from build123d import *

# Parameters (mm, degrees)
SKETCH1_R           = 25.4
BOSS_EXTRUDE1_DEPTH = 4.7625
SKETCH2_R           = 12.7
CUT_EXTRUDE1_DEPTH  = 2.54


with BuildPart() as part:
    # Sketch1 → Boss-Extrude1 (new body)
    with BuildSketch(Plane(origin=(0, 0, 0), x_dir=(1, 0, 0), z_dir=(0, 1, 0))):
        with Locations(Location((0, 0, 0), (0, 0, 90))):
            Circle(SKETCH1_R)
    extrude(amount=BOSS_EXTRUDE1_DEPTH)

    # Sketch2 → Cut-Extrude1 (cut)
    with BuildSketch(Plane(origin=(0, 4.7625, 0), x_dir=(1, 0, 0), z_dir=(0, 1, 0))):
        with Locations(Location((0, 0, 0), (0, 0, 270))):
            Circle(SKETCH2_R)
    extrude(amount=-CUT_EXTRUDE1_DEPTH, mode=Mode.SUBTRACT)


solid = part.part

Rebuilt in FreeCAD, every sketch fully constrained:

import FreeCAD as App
import Part
import Sketcher
from FreeCAD import Vector
Q = App.Units.Quantity

doc = App.newDocument("Part")
params = doc.addObject("Spreadsheet::Sheet", "Params")
for row, (alias, value) in enumerate([
    ("sketch1_diameter", "2 in"),
    ("pad1_length", "0.1875 in"),
    ("sketch2_diameter", "1 in"),
    ("pocket1_length", "0.1 in"),
], start=1):
    params.set(f"A{row}", alias)
    params.set(f"B{row}", "=" + value)
    params.setAlias(f"B{row}", alias)

body = doc.addObject("PartDesign::Body", "Body")

sketch1 = body.newObject("Sketcher::SketchObject", "Sketch")
sketch1.AttachmentSupport = (doc.getObject("XZ_Plane"), [""])
sketch1.MapMode = "FlatFace"
sketch1.addGeometry(Part.Circle(Vector(0, 0, 0), Vector(0, 0, 1), 25), False)
sketch1.addConstraint([
    Sketcher.Constraint("Coincident", 0, 3, -1, 1),
    Sketcher.Constraint("Diameter", 0, Q("2 in")),
])
sketch1.setExpression("Constraints[1]", "Params.sketch1_diameter")
pad1 = body.newObject("PartDesign::Pad", "Pad")
pad1.Profile = sketch1
pad1.setExpression("Length", "Params.pad1_length")
pad1.Reversed = True

sketch2 = body.newObject("Sketcher::SketchObject", "Sketch001")
sketch2.AttachmentSupport = (doc.getObject("XZ_Plane"), [""])
sketch2.MapMode = "FlatFace"
sketch2.AttachmentOffset = App.Placement(Vector(0, 0, -0.1875 * 25.4), App.Rotation())
sketch2.addGeometry(Part.Circle(Vector(0, 0, 0), Vector(0, 0, 1), 13), False)
sketch2.addConstraint([
    Sketcher.Constraint("Coincident", 0, 3, -1, 1),
    Sketcher.Constraint("Diameter", 0, Q("1 in")),
])
sketch2.setExpression("Constraints[1]", "Params.sketch2_diameter")
pocket1 = body.newObject("PartDesign::Pocket", "Pocket")
pocket1.Profile = sketch2
pocket1.setExpression("Length", "Params.pocket1_length")
pocket1.Reversed = True

doc.recompute()
